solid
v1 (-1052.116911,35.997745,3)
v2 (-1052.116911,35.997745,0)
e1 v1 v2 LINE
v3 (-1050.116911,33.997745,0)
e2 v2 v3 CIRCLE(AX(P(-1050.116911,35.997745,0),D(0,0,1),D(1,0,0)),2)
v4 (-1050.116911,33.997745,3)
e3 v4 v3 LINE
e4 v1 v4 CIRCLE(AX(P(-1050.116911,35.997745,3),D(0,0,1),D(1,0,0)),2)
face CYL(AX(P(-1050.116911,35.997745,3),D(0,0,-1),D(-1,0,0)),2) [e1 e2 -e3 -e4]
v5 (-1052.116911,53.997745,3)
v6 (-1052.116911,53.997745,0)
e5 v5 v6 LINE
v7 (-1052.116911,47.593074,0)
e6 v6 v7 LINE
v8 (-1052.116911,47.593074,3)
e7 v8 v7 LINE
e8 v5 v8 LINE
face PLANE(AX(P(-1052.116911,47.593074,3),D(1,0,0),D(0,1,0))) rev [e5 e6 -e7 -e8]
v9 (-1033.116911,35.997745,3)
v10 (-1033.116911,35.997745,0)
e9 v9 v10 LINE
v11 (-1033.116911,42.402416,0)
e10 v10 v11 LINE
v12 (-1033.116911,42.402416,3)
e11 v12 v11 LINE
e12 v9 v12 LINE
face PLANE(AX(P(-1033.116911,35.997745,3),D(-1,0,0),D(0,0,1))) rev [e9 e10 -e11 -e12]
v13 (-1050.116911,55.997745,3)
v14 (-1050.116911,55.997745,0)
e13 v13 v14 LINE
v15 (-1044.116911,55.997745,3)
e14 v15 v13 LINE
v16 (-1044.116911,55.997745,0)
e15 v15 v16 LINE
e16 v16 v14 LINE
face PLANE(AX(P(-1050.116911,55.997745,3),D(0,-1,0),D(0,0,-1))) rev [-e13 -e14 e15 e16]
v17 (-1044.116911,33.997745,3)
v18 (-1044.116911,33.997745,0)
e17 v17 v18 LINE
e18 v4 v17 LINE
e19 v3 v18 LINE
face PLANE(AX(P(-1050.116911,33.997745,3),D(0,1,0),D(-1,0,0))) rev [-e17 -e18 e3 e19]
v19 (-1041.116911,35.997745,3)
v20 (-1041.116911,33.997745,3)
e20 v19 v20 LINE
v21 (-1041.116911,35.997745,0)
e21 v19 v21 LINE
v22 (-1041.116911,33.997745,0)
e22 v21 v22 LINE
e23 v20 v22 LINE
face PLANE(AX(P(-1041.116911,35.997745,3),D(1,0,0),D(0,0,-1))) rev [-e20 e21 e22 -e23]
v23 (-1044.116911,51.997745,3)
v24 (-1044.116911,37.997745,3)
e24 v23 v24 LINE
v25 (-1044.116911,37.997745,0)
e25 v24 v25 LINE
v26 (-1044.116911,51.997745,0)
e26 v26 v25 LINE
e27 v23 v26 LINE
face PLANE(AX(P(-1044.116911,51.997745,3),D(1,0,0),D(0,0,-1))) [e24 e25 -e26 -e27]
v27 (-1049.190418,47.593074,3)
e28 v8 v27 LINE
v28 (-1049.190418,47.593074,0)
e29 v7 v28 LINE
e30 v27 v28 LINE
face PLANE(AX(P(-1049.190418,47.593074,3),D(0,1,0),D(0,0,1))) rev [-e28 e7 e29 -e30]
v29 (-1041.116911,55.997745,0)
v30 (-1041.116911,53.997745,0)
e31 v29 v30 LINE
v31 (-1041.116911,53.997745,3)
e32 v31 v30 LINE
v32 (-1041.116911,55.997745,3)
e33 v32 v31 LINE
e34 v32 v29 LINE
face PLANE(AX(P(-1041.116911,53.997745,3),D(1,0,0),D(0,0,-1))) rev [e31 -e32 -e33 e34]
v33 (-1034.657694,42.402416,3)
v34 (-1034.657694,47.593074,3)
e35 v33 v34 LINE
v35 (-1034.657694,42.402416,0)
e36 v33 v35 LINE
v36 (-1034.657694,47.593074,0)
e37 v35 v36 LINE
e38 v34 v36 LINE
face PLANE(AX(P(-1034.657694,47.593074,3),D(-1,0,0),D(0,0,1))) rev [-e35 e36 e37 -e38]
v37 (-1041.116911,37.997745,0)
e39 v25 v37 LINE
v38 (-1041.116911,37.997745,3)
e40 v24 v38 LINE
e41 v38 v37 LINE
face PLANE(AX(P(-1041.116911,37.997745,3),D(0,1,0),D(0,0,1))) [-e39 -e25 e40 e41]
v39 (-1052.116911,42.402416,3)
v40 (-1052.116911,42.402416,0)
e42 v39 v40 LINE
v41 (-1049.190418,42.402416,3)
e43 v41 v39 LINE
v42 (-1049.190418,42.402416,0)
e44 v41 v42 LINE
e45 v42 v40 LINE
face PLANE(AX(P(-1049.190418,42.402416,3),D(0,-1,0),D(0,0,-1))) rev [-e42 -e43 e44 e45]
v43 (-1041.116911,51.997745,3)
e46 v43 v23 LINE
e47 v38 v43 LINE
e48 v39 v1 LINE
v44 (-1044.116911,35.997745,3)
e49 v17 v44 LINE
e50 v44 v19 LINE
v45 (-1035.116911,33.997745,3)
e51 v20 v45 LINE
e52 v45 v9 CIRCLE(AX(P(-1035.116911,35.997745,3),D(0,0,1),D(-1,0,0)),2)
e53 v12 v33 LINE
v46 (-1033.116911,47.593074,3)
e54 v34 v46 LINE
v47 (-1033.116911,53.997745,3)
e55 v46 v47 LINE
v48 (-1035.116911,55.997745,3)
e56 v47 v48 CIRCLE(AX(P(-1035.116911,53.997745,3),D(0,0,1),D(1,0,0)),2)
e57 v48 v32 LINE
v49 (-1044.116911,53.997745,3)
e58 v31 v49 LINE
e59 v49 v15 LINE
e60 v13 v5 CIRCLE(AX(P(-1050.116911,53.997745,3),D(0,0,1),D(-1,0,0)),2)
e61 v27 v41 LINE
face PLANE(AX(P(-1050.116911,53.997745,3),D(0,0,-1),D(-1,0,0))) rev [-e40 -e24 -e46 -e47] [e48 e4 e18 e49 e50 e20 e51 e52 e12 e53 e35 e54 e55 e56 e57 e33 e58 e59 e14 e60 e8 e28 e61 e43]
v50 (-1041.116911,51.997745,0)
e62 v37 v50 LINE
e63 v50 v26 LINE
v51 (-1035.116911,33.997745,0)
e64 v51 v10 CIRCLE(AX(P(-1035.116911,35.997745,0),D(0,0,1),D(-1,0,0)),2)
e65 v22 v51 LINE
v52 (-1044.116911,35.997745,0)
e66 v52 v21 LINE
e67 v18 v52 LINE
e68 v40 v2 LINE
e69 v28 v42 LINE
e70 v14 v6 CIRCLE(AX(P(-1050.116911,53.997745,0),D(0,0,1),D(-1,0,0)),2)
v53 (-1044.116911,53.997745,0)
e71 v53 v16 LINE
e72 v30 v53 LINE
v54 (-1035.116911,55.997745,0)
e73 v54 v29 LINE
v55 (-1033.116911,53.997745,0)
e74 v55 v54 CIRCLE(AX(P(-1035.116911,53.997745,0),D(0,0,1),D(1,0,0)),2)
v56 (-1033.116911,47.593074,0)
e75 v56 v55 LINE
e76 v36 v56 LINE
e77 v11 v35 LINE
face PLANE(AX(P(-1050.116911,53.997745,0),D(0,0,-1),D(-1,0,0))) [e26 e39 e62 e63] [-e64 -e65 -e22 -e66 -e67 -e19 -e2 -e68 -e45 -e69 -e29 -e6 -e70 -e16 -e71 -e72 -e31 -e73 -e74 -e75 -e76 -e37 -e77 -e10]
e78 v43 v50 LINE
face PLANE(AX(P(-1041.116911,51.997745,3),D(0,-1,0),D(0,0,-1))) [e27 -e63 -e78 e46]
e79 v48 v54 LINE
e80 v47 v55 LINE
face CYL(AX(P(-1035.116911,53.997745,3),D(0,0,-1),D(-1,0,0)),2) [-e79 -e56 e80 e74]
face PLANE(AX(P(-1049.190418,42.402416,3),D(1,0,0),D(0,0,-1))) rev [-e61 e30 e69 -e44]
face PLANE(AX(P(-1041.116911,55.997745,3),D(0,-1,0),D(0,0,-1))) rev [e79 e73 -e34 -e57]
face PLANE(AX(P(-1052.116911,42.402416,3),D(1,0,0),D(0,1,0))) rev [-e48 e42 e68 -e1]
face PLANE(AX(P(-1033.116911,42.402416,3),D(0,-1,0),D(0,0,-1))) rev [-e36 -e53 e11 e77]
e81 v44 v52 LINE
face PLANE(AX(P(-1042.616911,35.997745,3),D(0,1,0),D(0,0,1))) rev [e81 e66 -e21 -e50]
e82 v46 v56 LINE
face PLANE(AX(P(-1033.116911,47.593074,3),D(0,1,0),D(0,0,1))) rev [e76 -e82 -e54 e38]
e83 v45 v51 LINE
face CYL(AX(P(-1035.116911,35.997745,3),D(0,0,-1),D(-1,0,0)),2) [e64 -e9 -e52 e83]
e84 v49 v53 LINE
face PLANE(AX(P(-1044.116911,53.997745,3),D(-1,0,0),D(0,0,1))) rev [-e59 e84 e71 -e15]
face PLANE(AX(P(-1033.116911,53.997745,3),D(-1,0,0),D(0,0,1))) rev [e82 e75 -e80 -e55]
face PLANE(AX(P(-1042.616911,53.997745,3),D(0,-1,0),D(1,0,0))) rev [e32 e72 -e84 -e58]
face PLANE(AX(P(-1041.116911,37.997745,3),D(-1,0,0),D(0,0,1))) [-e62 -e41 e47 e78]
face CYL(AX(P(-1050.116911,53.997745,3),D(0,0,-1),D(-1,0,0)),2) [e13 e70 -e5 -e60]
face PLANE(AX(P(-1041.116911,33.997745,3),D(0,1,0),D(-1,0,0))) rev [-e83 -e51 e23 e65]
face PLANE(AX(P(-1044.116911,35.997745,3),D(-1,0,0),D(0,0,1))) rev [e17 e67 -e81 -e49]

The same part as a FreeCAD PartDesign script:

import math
import FreeCAD as App
import Part
import Sketcher
from FreeCAD import Vector


def add_polygon(sketch, points):
    """Adds a closed chain of lines whose ends are joined by coincident constraints."""
    first, n = sketch.GeometryCount, len(points)
    for a, b in zip(points, points[1:] + points[:1]):
        sketch.addGeometry(Part.LineSegment(App.Vector(*a, 0), App.Vector(*b, 0)), False)
    for i in range(n):
        sketch.addConstraint(Sketcher.Constraint("Coincident", first + i, 2, first + (i + 1) % n, 1))

doc = App.newDocument("Part")
body = doc.addObject("PartDesign::Body", "Body")

# Sketch on XY plane
sketch1 = body.newObject("Sketcher::SketchObject", "Sketch")
sketch1.AttachmentSupport = (doc.getObject("XY_Plane"), [""])
sketch1.MapMode = "FlatFace"
sketch1.addGeometry(Part.LineSegment(Vector(-1033.1, 47.6, 0), Vector(-1033.1, 54, 0)), False)  # 0
sketch1.addGeometry(Part.ArcOfCircle(Part.Circle(Vector(-1035.1, 54, 0), Vector(0, 0, 1), 2), math.radians(0), math.radians(90)), False)  # 1
sketch1.addGeometry(Part.LineSegment(Vector(-1035.1, 56, 0), Vector(-1041.1, 56, 0)), False)  # 2
sketch1.addGeometry(Part.LineSegment(Vector(-1041.1, 56, 0), Vector(-1041.1, 54, 0)), False)  # 3
sketch1.addGeometry(Part.LineSegment(Vector(-1041.1, 54, 0), Vector(-1044.1, 54, 0)), False)  # 4
sketch1.addGeometry(Part.LineSegment(Vector(-1044.1, 54, 0), Vector(-1044.1, 56, 0)), False)  # 5
sketch1.addGeometry(Part.LineSegment(Vector(-1044.1, 56, 0), Vector(-1050.1, 56, 0)), False)  # 6
sketch1.addGeometry(Part.ArcOfCircle(Part.Circle(Vector(-1050.1, 54, 0), Vector(0, 0, 1), 2), math.radians(90), math.radians(180)), False)  # 7
sketch1.addGeometry(Part.LineSegment(Vector(-1052.1, 54, 0), Vector(-1052.1, 47.6, 0)), False)  # 8
sketch1.addGeometry(Part.LineSegment(Vector(-1052.1, 47.6, 0), Vector(-1049.2, 47.6, 0)), False)  # 9
sketch1.addGeometry(Part.LineSegment(Vector(-1049.2, 47.6, 0), Vector(-1049.2, 42.4, 0)), False)  # 10
sketch1.addGeometry(Part.LineSegment(Vector(-1049.2, 42.4, 0), Vector(-1052.1, 42.4, 0)), False)  # 11
sketch1.addGeometry(Part.LineSegment(Vector(-1052.1, 42.4, 0), Vector(-1052.1, 36, 0)), False)  # 12
sketch1.addGeometry(Part.ArcOfCircle(Part.Circle(Vector(-1050.1, 36, 0), Vector(0, 0, 1), 2), math.radians(180), math.radians(270)), False)  # 13
sketch1.addGeometry(Part.LineSegment(Vector(-1050.1, 34, 0), Vector(-1044.1, 34, 0)), False)  # 14
sketch1.addGeometry(Part.LineSegment(Vector(-1044.1, 34, 0), Vector(-1044.1, 36, 0)), False)  # 15
sketch1.addGeometry(Part.LineSegment(Vector(-1044.1, 36, 0), Vector(-1041.1, 36, 0)), False)  # 16
sketch1.addGeometry(Part.LineSegment(Vector(-1041.1, 36, 0), Vector(-1041.1, 34, 0)), False)  # 17
sketch1.addGeometry(Part.LineSegment(Vector(-1041.1, 34, 0), Vector(-1035.1, 34, 0)), False)  # 18
sketch1.addGeometry(Part.ArcOfCircle(Part.Circle(Vector(-1035.1, 36, 0), Vector(0, 0, 1), 2), math.radians(-90), math.radians(0)), False)  # 19
sketch1.addGeometry(Part.LineSegment(Vector(-1033.1, 36, 0), Vector(-1033.1, 42.4, 0)), False)  # 20
sketch1.addGeometry(Part.LineSegment(Vector(-1033.1, 42.4, 0), Vector(-1034.7, 42.4, 0)), False)  # 21
sketch1.addGeometry(Part.LineSegment(Vector(-1034.7, 42.4, 0), Vector(-1034.7, 47.6, 0)), False)  # 22
sketch1.addGeometry(Part.LineSegment(Vector(-1034.7, 47.6, 0), Vector(-1033.1, 47.6, 0)), False)  # 23
add_polygon(sketch1, [(-1044.1, 38), (-1044.1, 52), (-1041.1, 52), (-1041.1, 38)])  # lines 24-27
sketch1.addConstraint([
    Sketcher.Constraint("Tangent", 0, 2, 1, 1),
    Sketcher.Constraint("Tangent", 1, 2, 2, 1),
    Sketcher.Constraint("Coincident", 2, 2, 3, 1),
    Sketcher.Constraint("Coincident", 3, 2, 4, 1),
    Sketcher.Constraint("Coincident", 4, 2, 5, 1),
    Sketcher.Constraint("Coincident", 5, 2, 6, 1),
    Sketcher.Constraint("Tangent", 6, 2, 7, 1),
    Sketcher.Constraint("Tangent", 7, 2, 8, 1),
    Sketcher.Constraint("Coincident", 8, 2, 9, 1),
    Sketcher.Constraint("Coincident", 9, 2, 10, 1),
    Sketcher.Constraint("Coincident", 10, 2, 11, 1),
    Sketcher.Constraint("Coincident", 11, 2, 12, 1),
    Sketcher.Constraint("Tangent", 12, 2, 13, 1),
    Sketcher.Constraint("Tangent", 13, 2, 14, 1),
    Sketcher.Constraint("Coincident", 14, 2, 15, 1),
    Sketcher.Constraint("Coincident", 15, 2, 16, 1),
    Sketcher.Constraint("Coincident", 16, 2, 17, 1),
    Sketcher.Constraint("Coincident", 17, 2, 18, 1),
    Sketcher.Constraint("Tangent", 18, 2, 19, 1),
    Sketcher.Constraint("Tangent", 19, 2, 20, 1),
    Sketcher.Constraint("Coincident", 20, 2, 21, 1),
    Sketcher.Constraint("Coincident", 21, 2, 22, 1),
    Sketcher.Constraint("Coincident", 22, 2, 23, 1),
    Sketcher.Constraint("Coincident", 23, 2, 0, 1),
    Sketcher.Constraint("Vertical", 0),
    Sketcher.Constraint("Horizontal", 2),
    Sketcher.Constraint("Vertical", 3),
    Sketcher.Constraint("Horizontal", 4),
    Sketcher.Constraint("Vertical", 5),
    Sketcher.Constraint("Horizontal", 6),
    Sketcher.Constraint("Vertical", 8),
    Sketcher.Constraint("Horizontal", 9),
    Sketcher.Constraint("Vertical", 10),
    Sketcher.Constraint("Horizontal", 11),
    Sketcher.Constraint("Vertical", 12),
    Sketcher.Constraint("Horizontal", 14),
    Sketcher.Constraint("Vertical", 15),
    Sketcher.Constraint("Horizontal", 16),
    Sketcher.Constraint("Vertical", 17),
    Sketcher.Constraint("Horizontal", 18),
    Sketcher.Constraint("Vertical", 20),
    Sketcher.Constraint("Horizontal", 21),
    Sketcher.Constraint("Vertical", 22),
    Sketcher.Constraint("Horizontal", 23),
    Sketcher.Constraint("Vertical", 24),
    Sketcher.Constraint("Horizontal", 25),
    Sketcher.Constraint("Vertical", 26),
    Sketcher.Constraint("Horizontal", 27),
    Sketcher.Constraint("Equal", 1, 7),
    Sketcher.Constraint("Equal", 7, 13),
    Sketcher.Constraint("Equal", 13, 19),
    Sketcher.Constraint("Horizontal", 1, 3, 7, 3),
    Sketcher.Constraint("Horizontal", 13, 3, 19, 3),
    Sketcher.Constraint("Horizontal", 0, 2, 3, 2),
    Sketcher.Constraint("Horizontal", 12, 2, 15, 2),
    Sketcher.Constraint("Horizontal", 11, 2, 20, 2),
    Sketcher.Constraint("Horizontal", 9, 2, 22, 2),
    Sketcher.Constraint("Vertical", 7, 3, 13, 3),
    Sketcher.Constraint("Vertical", 1, 3, 19, 3),
    Sketcher.Constraint("Vertical", 5, 2, 14, 2),
    Sketcher.Constraint("Vertical", 3, 2, 16, 2),
    Sketcher.Constraint("Vertical", 15, 2, 24, 2),
    Sketcher.Constraint("Vertical", 17, 2, 25, 2),
    Sketcher.Constraint("Equal", 2, 6),
    Sketcher.Constraint("Equal", 8, 12),
    Sketcher.Constraint("Radius", 1, 2.0),
    Sketcher.Constraint("DistanceX", 2, 2, 2, 1, 6.0),
    Sketcher.Constraint("DistanceX", 4, 2, 4, 1, 3.0),
    Sketcher.Constraint("DistanceY", 24, 1, 24, 2, 14.0),
    Sketcher.Constraint("DistanceY", 13, 3, 7, 3, 18.0),
    Sketcher.Constraint("DistanceY", 24, 2, 4, 2, 2.0),
    Sketcher.Constraint("DistanceY", 0, 1, 0, 2, 6.404671),
    Sketcher.Constraint("DistanceX", 9, 1, 9, 2, 2.926492),
    Sketcher.Constraint("DistanceX", 21, 2, 21, 1, 1.540783),
    Sketcher.Constraint("DistanceX", 1, 3, -1, 1, 1035.116911),
    Sketcher.Constraint("DistanceY", -1, 1, 1, 3, 53.997745),
])
pad1 = body.newObject("PartDesign::Pad", "Pad")
pad1.Profile = sketch1
pad1.Length = 3

doc.recompute()
